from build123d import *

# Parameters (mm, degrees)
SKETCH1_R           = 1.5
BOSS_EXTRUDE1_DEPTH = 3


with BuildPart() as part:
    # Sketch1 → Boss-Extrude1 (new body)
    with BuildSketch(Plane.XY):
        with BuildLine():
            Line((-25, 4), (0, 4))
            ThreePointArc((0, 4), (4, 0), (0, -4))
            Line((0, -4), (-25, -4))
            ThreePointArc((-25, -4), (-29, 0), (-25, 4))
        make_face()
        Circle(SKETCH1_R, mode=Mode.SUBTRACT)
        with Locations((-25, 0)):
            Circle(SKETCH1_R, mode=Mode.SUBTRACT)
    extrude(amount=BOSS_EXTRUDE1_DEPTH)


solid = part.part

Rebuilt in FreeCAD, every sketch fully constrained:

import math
import FreeCAD as App
import Part
import Sketcher
from FreeCAD import Vector

doc = App.newDocument("Part")
params = doc.addObject("Spreadsheet::Sheet", "Params")
for row, (alias, value) in enumerate([
    ("sketch1_diameter", "3 mm"),
    ("sketch1_radius", "4 mm"),
    ("sketch1_width", "25 mm"),
    ("pad1_length", "3 mm"),
], start=1):
    params.set(f"A{row}", alias)
    params.set(f"B{row}", "=" + value)
    params.setAlias(f"B{row}", alias)

body = doc.addObject("PartDesign::Body", "Body")

# Sketch on XY plane
sketch1 = doc.addObject("Sketcher::SketchObject", "Sketch")
body.addObject(sketch1)
sketch1.AttachmentSupport = (doc.XY_Plane, [""])
sketch1.MapMode = "FlatFace"
sketch1.addGeometry(Part.LineSegment(Vector(0, 4, 0), Vector(-25, 4, 0)), False)
sketch1.addGeometry(Part.ArcOfCircle(Part.Circle(Vector(-25, 0, 0), Vector(0, 0, 1), 4), math.radians(90), math.radians(270)), False)
sketch1.addGeometry(Part.LineSegment(Vector(-25, -4, 0), Vector(0, -4, 0)), False)
sketch1.addGeometry(Part.ArcOfCircle(Part.Circle(Vector(0, 0, 0), Vector(0, 0, 1), 4), math.radians(-90), math.radians(90)), False)
sketch1.addGeometry(Part.Circle(Vector(0, 0, 0), Vector(0, 0, 1), 1.5), False)
sketch1.addGeometry(Part.Circle(Vector(-25, 0, 0), Vector(0, 0, 1), 1.5), False)
sketch1.addConstraint(Sketcher.Constraint("Tangent", 0, 2, 1, 1))
sketch1.addConstraint(Sketcher.Constraint("Tangent", 1, 2, 2, 1))
sketch1.addConstraint(Sketcher.Constraint("Tangent", 2, 2, 3, 1))
sketch1.addConstraint(Sketcher.Constraint("Tangent", 3, 2, 0, 1))
sketch1.addConstraint(Sketcher.Constraint("Horizontal", 0))
sketch1.addConstraint(Sketcher.Constraint("Horizontal", 2))
sketch1.addConstraint(Sketcher.Constraint("Coincident", 3, 3, -1, 1))
sketch1.addConstraint(Sketcher.Constraint("Coincident", 4, 3, -1, 1))
sketch1.addConstraint(Sketcher.Constraint("Coincident", 5, 3, 1, 3))
sketch1.addConstraint(Sketcher.Constraint("Equal", 4, 5))
sketch1.addConstraint(Sketcher.Constraint("Diameter", 4, 3.0))
sketch1.addConstraint(Sketcher.Constraint("Radius", 1, 4.0))
sketch1.addConstraint(Sketcher.Constraint("DistanceX", 0, 2, 0, 1, 25.0))
sketch1.setExpression("Constraints[10]", "Params.sketch1_diameter")
sketch1.setExpression("Constraints[11]", "Params.sketch1_radius")
sketch1.setExpression("Constraints[12]", "Params.sketch1_width")
pad1 = doc.addObject("PartDesign::Pad", "Pad")
body.addObject(pad1)
pad1.Profile = sketch1
pad1.setExpression("Length", "Params.pad1_length")

doc.recompute()
